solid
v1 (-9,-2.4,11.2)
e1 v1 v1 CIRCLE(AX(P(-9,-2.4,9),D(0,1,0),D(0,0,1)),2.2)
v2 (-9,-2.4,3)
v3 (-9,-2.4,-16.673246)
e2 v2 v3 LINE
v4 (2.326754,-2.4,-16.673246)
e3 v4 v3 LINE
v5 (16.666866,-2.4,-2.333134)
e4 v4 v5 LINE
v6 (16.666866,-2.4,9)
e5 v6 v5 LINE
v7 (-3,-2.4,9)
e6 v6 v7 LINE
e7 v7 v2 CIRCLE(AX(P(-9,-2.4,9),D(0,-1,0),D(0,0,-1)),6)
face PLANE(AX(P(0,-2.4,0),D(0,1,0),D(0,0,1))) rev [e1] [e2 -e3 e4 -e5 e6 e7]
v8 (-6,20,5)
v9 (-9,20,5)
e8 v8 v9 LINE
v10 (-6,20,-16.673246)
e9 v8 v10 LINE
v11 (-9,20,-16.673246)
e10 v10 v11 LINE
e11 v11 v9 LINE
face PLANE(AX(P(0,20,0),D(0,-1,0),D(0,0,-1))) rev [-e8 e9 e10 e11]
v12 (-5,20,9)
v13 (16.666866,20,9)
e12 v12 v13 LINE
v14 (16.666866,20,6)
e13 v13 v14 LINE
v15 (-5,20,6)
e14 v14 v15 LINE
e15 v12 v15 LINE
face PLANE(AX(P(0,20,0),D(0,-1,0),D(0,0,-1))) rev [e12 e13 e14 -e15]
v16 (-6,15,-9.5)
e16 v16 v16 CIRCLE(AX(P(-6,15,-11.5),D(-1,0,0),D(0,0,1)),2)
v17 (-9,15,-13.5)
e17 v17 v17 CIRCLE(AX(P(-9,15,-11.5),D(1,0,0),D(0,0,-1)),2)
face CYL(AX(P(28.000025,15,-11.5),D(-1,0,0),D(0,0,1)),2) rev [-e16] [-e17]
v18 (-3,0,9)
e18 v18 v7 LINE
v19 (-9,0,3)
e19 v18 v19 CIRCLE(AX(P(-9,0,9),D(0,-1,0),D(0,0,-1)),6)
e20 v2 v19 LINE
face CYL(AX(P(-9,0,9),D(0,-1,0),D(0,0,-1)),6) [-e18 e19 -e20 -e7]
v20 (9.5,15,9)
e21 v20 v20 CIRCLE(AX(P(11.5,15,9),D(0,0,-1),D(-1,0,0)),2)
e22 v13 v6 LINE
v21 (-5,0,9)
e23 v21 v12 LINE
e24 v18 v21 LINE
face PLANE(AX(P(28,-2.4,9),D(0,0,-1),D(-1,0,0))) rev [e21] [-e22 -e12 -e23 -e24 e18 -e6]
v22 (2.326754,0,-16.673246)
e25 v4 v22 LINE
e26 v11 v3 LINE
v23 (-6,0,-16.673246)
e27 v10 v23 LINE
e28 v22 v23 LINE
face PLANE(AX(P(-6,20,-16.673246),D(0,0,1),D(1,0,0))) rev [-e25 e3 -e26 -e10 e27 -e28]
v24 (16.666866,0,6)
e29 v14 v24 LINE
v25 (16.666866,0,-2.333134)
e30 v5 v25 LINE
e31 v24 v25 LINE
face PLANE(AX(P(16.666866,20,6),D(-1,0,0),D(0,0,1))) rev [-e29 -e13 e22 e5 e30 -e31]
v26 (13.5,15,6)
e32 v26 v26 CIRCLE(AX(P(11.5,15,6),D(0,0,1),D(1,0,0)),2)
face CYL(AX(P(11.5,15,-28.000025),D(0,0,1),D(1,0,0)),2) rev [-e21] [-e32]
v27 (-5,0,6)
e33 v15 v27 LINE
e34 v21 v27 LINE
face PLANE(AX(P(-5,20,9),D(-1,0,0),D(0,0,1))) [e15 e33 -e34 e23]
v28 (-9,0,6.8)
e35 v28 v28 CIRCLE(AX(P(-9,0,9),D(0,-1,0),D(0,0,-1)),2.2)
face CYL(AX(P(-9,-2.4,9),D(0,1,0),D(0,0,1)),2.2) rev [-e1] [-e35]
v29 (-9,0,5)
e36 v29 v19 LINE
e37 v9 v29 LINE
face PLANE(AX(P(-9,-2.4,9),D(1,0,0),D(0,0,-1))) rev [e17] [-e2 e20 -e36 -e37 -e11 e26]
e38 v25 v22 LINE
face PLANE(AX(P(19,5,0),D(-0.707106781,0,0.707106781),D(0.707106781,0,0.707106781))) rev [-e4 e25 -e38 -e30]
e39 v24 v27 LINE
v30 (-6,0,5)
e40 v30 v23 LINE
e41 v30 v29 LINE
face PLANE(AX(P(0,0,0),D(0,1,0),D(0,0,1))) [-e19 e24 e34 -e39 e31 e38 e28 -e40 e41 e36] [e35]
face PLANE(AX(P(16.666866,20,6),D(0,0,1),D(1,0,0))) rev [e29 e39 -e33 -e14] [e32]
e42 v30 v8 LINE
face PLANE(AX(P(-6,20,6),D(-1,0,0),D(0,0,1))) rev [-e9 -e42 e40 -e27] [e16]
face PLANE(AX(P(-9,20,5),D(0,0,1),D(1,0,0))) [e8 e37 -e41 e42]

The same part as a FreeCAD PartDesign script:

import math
import FreeCAD as App
import Part
import Sketcher
Q = App.Units.Quantity


def edges_at(feature, points):
    """Names of the edges that pass closest to the given points."""
    edges = feature.Shape.Edges
    near = lambda p: min(range(len(edges)), key=lambda i: edges[i].distToShape(Part.Vertex(*p))[0])
    return sorted({f"Edge{near(p) + 1}" for p in points})

doc = App.newDocument("Part")
params = doc.addObject("Spreadsheet::Sheet", "Params")
for row, (alias, value) in enumerate([
    ("sketch1_width", "19 mm"),
    ("pad1_length", "5 mm"),
    ("sketch2_width", "19 mm"),
    ("sketch2_width2", "13 mm"),
    ("pad2_length", "15 mm"),
    ("sketch3_diameter", "4 mm"),
    ("sketch4_diameter", "4 mm"),
    ("fillet_radius", "1 mm"),
    ("sketch5_width", "37 mm"),
    ("pad3_length", "2.4 mm"),
    ("sketch6_width", "3 mm"),
    ("pad4_length", "20 mm"),
    ("sketch7_diameter", "4 mm"),
    ("sketch8_diameter", "4 mm"),
    ("sketch9_radius", "1 mm"),
    ("pocket5_length", "20 mm"),
    ("sketch10_radius", "1 mm"),
    ("sketch11_radius", "1 mm"),
    ("sketch12_diameter", "12 mm"),
    ("pad5_length", "2.4 mm"),
    ("sketch13_diameter", "4.4 mm"),
    ("sketch14_diameter", "8 mm"),
    ("sketch15_radius", "4 mm"),
], start=1):
    params.set(f"A{row}", alias)
    params.set(f"B{row}", "=" + value)
    params.setAlias(f"B{row}", alias)

body = doc.addObject("PartDesign::Body", "Body")

# Sketch on XZ plane
sketch1 = doc.addObject("Sketcher::SketchObject", "Sketch")
body.addObject(sketch1)
sketch1.AttachmentSupport = (doc.XZ_Plane, [""])
sketch1.MapMode = "FlatFace"
sketch1.addGeometry([
    Part.LineSegment(App.Vector(0, -19, 0), App.Vector(0, 0, 0)),
    Part.LineSegment(App.Vector(0, 0, 0), App.Vector(19, 0, 0)),
    Part.LineSegment(App.Vector(19, 0, 0), App.Vector(0, -19, 0)),
], False)
sketch1.addConstraint([
    Sketcher.Constraint("Coincident", 0, 2, 1, 1),
    Sketcher.Constraint("Coincident", 1, 2, 2, 1),
    Sketcher.Constraint("Coincident", 2, 2, 0, 1),
    Sketcher.Constraint("Vertical", 0),
    Sketcher.Constraint("Horizontal", 1),
    Sketcher.Constraint("Coincident", 0, 2, -1, 1),
    Sketcher.Constraint("Equal", 1, 0),
    Sketcher.Constraint("DistanceX", 1, 1, 1, 2, 19.0),
])
sketch1.setExpression("Constraints[7]", "Params.sketch1_width")
pad1 = doc.addObject("PartDesign::Pad", "Pad")
body.addObject(pad1)
pad1.Profile = sketch1
pad1.setExpression("Length", "Params.pad1_length")
pad1.Reversed = True

# Sketch on XZ plane
sketch2 = doc.addObject("Sketcher::SketchObject", "Sketch001")
body.addObject(sketch2)
sketch2.AttachmentSupport = (doc.XZ_Plane, [""])
sketch2.MapMode = "FlatFace"
sketch2.AttachmentOffset = App.Placement(App.Vector(0, 0, -5), App.Rotation())
sketch2.addGeometry([
    Part.LineSegment(App.Vector(0, -19, 0), App.Vector(0, 0, 0)),  # 0
    Part.LineSegment(App.Vector(0, 0, 0), App.Vector(19, 0, 0)),  # 1
    Part.LineSegment(App.Vector(19, 0, 0), App.Vector(16, -3, 0)),  # 2
    Part.LineSegment(App.Vector(16, -3, 0), App.Vector(3, -3, 0)),  # 3
    Part.LineSegment(App.Vector(3, -3, 0), App.Vector(3, -16, 0)),  # 4
    Part.LineSegment(App.Vector(3, -16, 0), App.Vector(0, -19, 0)),  # 5
], False)
sketch2.addConstraint([
    Sketcher.Constraint("Coincident", 0, 2, 1, 1),
    Sketcher.Constraint("Coincident", 1, 2, 2, 1),
    Sketcher.Constraint("Coincident", 2, 2, 3, 1),
    Sketcher.Constraint("Coincident", 3, 2, 4, 1),
    Sketcher.Constraint("Coincident", 4, 2, 5, 1),
    Sketcher.Constraint("Coincident", 5, 2, 0, 1),
    Sketcher.Constraint("Vertical", 0),
    Sketcher.Constraint("Horizontal", 1),
    Sketcher.Constraint("Horizontal", 3),
    Sketcher.Constraint("Vertical", 4),
    Sketcher.Constraint("Coincident", 0, 2, -1, 1),
    Sketcher.Constraint("Parallel", 2, 5),
    Sketcher.Constraint("Equal", 1, 0),
    Sketcher.Constraint("Equal", 3, 4),
    Sketcher.Constraint("Equal", 2, 5),
    Sketcher.Constraint("DistanceX", 1, 1, 1, 2, 19.0),
    Sketcher.Constraint("DistanceX", 3, 2, 3, 1, 13.0),
])
sketch2.setExpression("Constraints[15]", "Params.sketch2_width")
sketch2.setExpression("Constraints[16]", "Params.sketch2_width2")
pad2 = doc.addObject("PartDesign::Pad", "Pad001")
body.addObject(pad2)
pad2.Profile = sketch2
pad2.setExpression("Length", "Params.pad2_length")
pad2.Reversed = True

# Sketch on XY plane
sketch3 = doc.addObject("Sketcher::SketchObject", "Sketch002")
body.addObject(sketch3)
sketch3.AttachmentSupport = (doc.XY_Plane, [""])
sketch3.MapMode = "FlatFace"
sketch3.addGeometry(Part.Circle(App.Vector(11.5, 15, 0), App.Vector(0, 0, 1), 2), False)
sketch3.addConstraint([
    Sketcher.Constraint("Diameter", 0, 4.0),
    Sketcher.Constraint("DistanceY", -1, 1, 0, 3, 15.0),
    Sketcher.Constraint("DistanceX", -1, 1, 0, 3, 11.5),
])
sketch3.setExpression("Constraints[0]", "Params.sketch3_diameter")
pocket1 = doc.addObject("PartDesign::Pocket", "Pocket")
body.addObject(pocket1)
pocket1.Profile = sketch3
pocket1.Type = "ThroughAll"

# Sketch on YZ plane
sketch4 = doc.addObject("Sketcher::SketchObject", "Sketch003")
body.addObject(sketch4)
sketch4.AttachmentSupport = (doc.YZ_Plane, [""])
sketch4.MapMode = "FlatFace"
sketch4.addGeometry(Part.Circle(App.Vector(15, -11.5, 0), App.Vector(0, 0, 1), 2), False)
sketch4.addConstraint([
    Sketcher.Constraint("Diameter", 0, 4.0),
    Sketcher.Constraint("DistanceX", -1, 1, 0, 3, 15.0),
    Sketcher.Constraint("DistanceY", 0, 3, -1, 1, 11.5),
])
sketch4.setExpression("Constraints[0]", "Params.sketch4_diameter")
pocket2 = doc.addObject("PartDesign::Pocket", "Pocket001")
body.addObject(pocket2)
pocket2.Profile = sketch4
pocket2.Type = "ThroughAll"
pocket2.Reversed = True
doc.recompute()

fillet = doc.addObject("PartDesign::Fillet", "Fillet")
body.addObject(fillet)
fillet.Base = (pocket2, edges_at(pocket2, [
    (9.5, 20, -3),
    (3, 20, -9.5),
    (1.5, 20, -17.5),
    (17.5, 20, -1.5),
    (19, 10, 0),
    (0, 10, -19),
]))
fillet.setExpression("Radius", "Params.fillet_radius")

# Sketch on XZ plane
sketch5 = doc.addObject("Sketcher::SketchObject", "Sketch004")
body.addObject(sketch5)
sketch5.AttachmentSupport = (doc.XZ_Plane, [""])
sketch5.MapMode = "FlatFace"
sketch5.addGeometry([
    Part.LineSegment(App.Vector(28, 9, 0), App.Vector(-9, 9, 0)),
    Part.LineSegment(App.Vector(-9, 9, 0), App.Vector(-9, -28, 0)),
    Part.LineSegment(App.Vector(-9, -28, 0), App.Vector(28, 9, 0)),
], False)
sketch5.addConstraint([
    Sketcher.Constraint("Coincident", 0, 2, 1, 1),
    Sketcher.Constraint("Coincident", 1, 2, 2, 1),
    Sketcher.Constraint("Coincident", 2, 2, 0, 1),
    Sketcher.Constraint("Horizontal", 0),
    Sketcher.Constraint("Vertical", 1),
    Sketcher.Constraint("Equal", 0, 1),
    Sketcher.Constraint("DistanceX", 0, 2, 0, 1, 37.0),
    Sketcher.Constraint("DistanceX", 0, 2, -1, 1, 9.0),
    Sketcher.Constraint("DistanceY", -1, 1, 0, 2, 9.0),
])
sketch5.setExpression("Constraints[6]", "Params.sketch5_width")
pad3 = doc.addObject("PartDesign::Pad", "Pad002")
body.addObject(pad3)
pad3.Profile = sketch5
pad3.setExpression("Length", "Params.pad3_length")

# Sketch on XZ plane
sketch6 = doc.addObject("Sketcher::SketchObject", "Sketch005")
body.addObject(sketch6)
sketch6.AttachmentSupport = (doc.XZ_Plane, [""])
sketch6.MapMode = "FlatFace"
sketch6.addGeometry([
    Part.LineSegment(App.Vector(-9, -16.7, 0), App.Vector(-9, 9, 0)),  # 0
    Part.LineSegment(App.Vector(-9, 9, 0), App.Vector(16.7, 9, 0)),  # 1
    Part.LineSegment(App.Vector(16.7, 9, 0), App.Vector(16.7, 6, 0)),  # 2
    Part.LineSegment(App.Vector(16.7, 6, 0), App.Vector(-6, 6, 0)),  # 3
    Part.LineSegment(App.Vector(-6, 6, 0), App.Vector(-6, -16.7, 0)),  # 4
    Part.LineSegment(App.Vector(-6, -16.7, 0), App.Vector(-9, -16.7, 0)),  # 5
], False)
sketch6.addConstraint([
    Sketcher.Constraint("Coincident", 0, 2, 1, 1),
    Sketcher.Constraint("Coincident", 1, 2, 2, 1),
    Sketcher.Constraint("Coincident", 2, 2, 3, 1),
    Sketcher.Constraint("Coincident", 3, 2, 4, 1),
    Sketcher.Constraint("Coincident", 4, 2, 5, 1),
    Sketcher.Constraint("Coincident", 5, 2, 0, 1),
    Sketcher.Constraint("Vertical", 0),
    Sketcher.Constraint("Horizontal", 1),
    Sketcher.Constraint("Vertical", 2),
    Sketcher.Constraint("Horizontal", 3),
    Sketcher.Constraint("Vertical", 4),
    Sketcher.Constraint("Horizontal", 5),
    Sketcher.Constraint("Equal", 5, 2),
    Sketcher.Constraint("DistanceX", 5, 2, 5, 1, 3.0),
    Sketcher.Constraint("DistanceX", 0, 2, -1, 1, 9.0),
    Sketcher.Constraint("DistanceY", -1, 1, 0, 2, 9.0),
    Sketcher.Constraint("DistanceX", 1, 1, 1, 2, 25.666866),
    Sketcher.Constraint("DistanceY", 0, 1, 0, 2, 25.673246),
])
sketch6.setExpression("Constraints[13]", "Params.sketch6_width")
pad4 = doc.addObject("PartDesign::Pad", "Pad003")
body.addObject(pad4)
pad4.Profile = sketch6
pad4.setExpression("Length", "Params.pad4_length")
pad4.Reversed = True

# Sketch on XY plane
sketch7 = doc.addObject("Sketcher::SketchObject", "Sketch006")
body.addObject(sketch7)
sketch7.AttachmentSupport = (doc.XY_Plane, [""])
sketch7.MapMode = "FlatFace"
sketch7.AttachmentOffset = App.Placement(App.Vector(0, 0, 9), App.Rotation())
sketch7.addGeometry(Part.Circle(App.Vector(11.5, 15, 0), App.Vector(0, 0, 1), 2), False)
sketch7.addConstraint([
    Sketcher.Constraint("Diameter", 0, 4.0),
    Sketcher.Constraint("DistanceY", -1, 1, 0, 3, 15.0),
    Sketcher.Constraint("DistanceX", -1, 1, 0, 3, 11.5),
])
sketch7.setExpression("Constraints[0]", "Params.sketch7_diameter")
pocket3 = doc.addObject("PartDesign::Pocket", "Pocket002")
body.addObject(pocket3)
pocket3.Profile = sketch7
pocket3.Type = "ThroughAll"
pocket3.Midplane = True

# Sketch on YZ plane
sketch8 = doc.addObject("Sketcher::SketchObject", "Sketch007")
body.addObject(sketch8)
sketch8.AttachmentSupport = (doc.YZ_Plane, [""])
sketch8.MapMode = "FlatFace"
sketch8.AttachmentOffset = App.Placement(App.Vector(0, 0, -9), App.Rotation())
sketch8.addGeometry(Part.Circle(App.Vector(15, -11.5, 0), App.Vector(0, 0, 1), 2), False)
sketch8.addConstraint([
    Sketcher.Constraint("Diameter", 0, 4.0),
    Sketcher.Constraint("DistanceX", -1, 1, 0, 3, 15.0),
    Sketcher.Constraint("DistanceY", 0, 3, -1, 1, 11.5),
])
sketch8.setExpression("Constraints[0]", "Params.sketch8_diameter")
pocket4 = doc.addObject("PartDesign::Pocket", "Pocket003")
body.addObject(pocket4)
pocket4.Profile = sketch8
pocket4.Type = "ThroughAll"
pocket4.Midplane = True

# Sketch on XZ plane
sketch9 = doc.addObject("Sketcher::SketchObject", "Sketch008")
body.addObject(sketch9)
sketch9.AttachmentSupport = (doc.XZ_Plane, [""])
sketch9.MapMode = "FlatFace"
sketch9.addGeometry([
    Part.LineSegment(App.Vector(16.7, 9, 0), App.Vector(28, 9, 0)),  # 0
    Part.LineSegment(App.Vector(28, 9, 0), App.Vector(17.3, -1.7, 0)),  # 1
    Part.ArcOfCircle(Part.Circle(App.Vector(16.6, -1, 0), App.Vector(0, 0, 1), 1), math.radians(-45), math.radians(85)),  # 2
    Part.LineSegment(App.Vector(16.7, 0, 0), App.Vector(16.7, 9, 0)),  # 3
    Part.ArcOfCircle(Part.Circle(App.Vector(1, -16.6, 0), App.Vector(0, 0, 1), 1), math.radians(-175), math.radians(-45)),  # 4
    Part.LineSegment(App.Vector(1.7, -17.3, 0), App.Vector(-9, -28, 0)),  # 5
    Part.LineSegment(App.Vector(-9, -28, 0), App.Vector(-9, -16.7, 0)),  # 6
    Part.LineSegment(App.Vector(-9, -16.7, 0), App.Vector(0, -16.7, 0)),  # 7
], False)
sketch9.addConstraint([
    Sketcher.Constraint("Coincident", 0, 2, 1, 1),
    Sketcher.Constraint("Tangent", 1, 2, 2, 1),
    Sketcher.Constraint("Coincident", 2, 2, 3, 1),
    Sketcher.Constraint("Coincident", 3, 2, 0, 1),
    Sketcher.Constraint("Tangent", 4, 2, 5, 1),
    Sketcher.Constraint("Coincident", 5, 2, 6, 1),
    Sketcher.Constraint("Coincident", 6, 2, 7, 1),
    Sketcher.Constraint("Coincident", 7, 2, 4, 1),
    Sketcher.Constraint("Horizontal", 0),
    Sketcher.Constraint("Vertical", 3),
    Sketcher.Constraint("Vertical", 6),
    Sketcher.Constraint("Horizontal", 7),
    Sketcher.Constraint("Equal", 2, 4),
    Sketcher.Constraint("Parallel", 1, 5),
    Sketcher.Constraint("Equal", 1, 5),
    Sketcher.Constraint("Radius", 2, 1.0),
    Sketcher.Constraint("Angle", 1, Q("-135 deg")),
    Sketcher.Constraint("DistanceY", 2, 3, -1, 1, 1.0),
    Sketcher.Constraint("DistanceX", -1, 1, 4, 3, 1.0),
    Sketcher.Constraint("DistanceX", -1, 1, 0, 2, 28.0),
    Sketcher.Constraint("DistanceY", -1, 1, 0, 2, 9.0),
    Sketcher.Constraint("DistanceY", 5, 2, -1, 1, 28.0),
    Sketcher.Constraint("DistanceX", 7, 1, 7, 2, 9.003832),
    Sketcher.Constraint("DistanceY", 4, 2, 2, 2, 17.289601),
])
sketch9.setExpression("Constraints[15]", "Params.sketch9_radius")
pocket5 = doc.addObject("PartDesign::Pocket", "Pocket004")
body.addObject(pocket5)
pocket5.Profile = sketch9
pocket5.setExpression("Length", "Params.pocket5_length")
pocket5.Reversed = True

# Sketch on XZ plane
sketch10 = doc.addObject("Sketcher::SketchObject", "Sketch009")
body.addObject(sketch10)
sketch10.AttachmentSupport = (doc.XZ_Plane, [""])
sketch10.MapMode = "FlatFace"
sketch10.addGeometry([
    Part.LineSegment(App.Vector(17.3, -1.7, 0), App.Vector(1.7, -17.3, 0)),  # 0
    Part.ArcOfCircle(Part.Circle(App.Vector(1, -16.6, 0), App.Vector(0, 0, 1), 1), math.radians(-180), math.radians(-45)),  # 1
    Part.LineSegment(App.Vector(0, -16.6, 0), App.Vector(0, 0, 0)),  # 2
    Part.LineSegment(App.Vector(0, 0, 0), App.Vector(16.6, 0, 0)),  # 3
    Part.ArcOfCircle(Part.Circle(App.Vector(16.6, -1, 0), App.Vector(0, 0, 1), 1), math.radians(-45), math.radians(90)),  # 4
], False)
sketch10.addConstraint([
    Sketcher.Constraint("Tangent", 0, 2, 1, 2),
    Sketcher.Constraint("Tangent", 1, 1, 2, 1),
    Sketcher.Constraint("Coincident", 2, 2, 3, 1),
    Sketcher.Constraint("Tangent", 3, 2, 4, 2),
    Sketcher.Constraint("Tangent", 4, 1, 0, 1),
    Sketcher.Constraint("Vertical", 2),
    Sketcher.Constraint("Horizontal", 3),
    Sketcher.Constraint("Coincident", 2, 2, -1, 1),
    Sketcher.Constraint("Equal", 1, 4),
    Sketcher.Constraint("Equal", 3, 2),
    Sketcher.Constraint("Radius", 1, 1.0),
    Sketcher.Constraint("Distance", 0, 22.041631),
])
sketch10.setExpression("Constraints[10]", "Params.sketch10_radius")
pocket6 = doc.addObject("PartDesign::Pocket", "Pocket005")
body.addObject(pocket6)
pocket6.Profile = sketch10
pocket6.Type = "ThroughAll"

# Sketch on XZ plane
sketch11 = doc.addObject("Sketcher::SketchObject", "Sketch010")
body.addObject(sketch11)
sketch11.AttachmentSupport = (doc.XZ_Plane, [""])
sketch11.MapMode = "FlatFace"
sketch11.addGeometry([
    Part.LineSegment(App.Vector(0, -16.7, 0), App.Vector(2.3, -16.7, 0)),  # 0
    Part.LineSegment(App.Vector(2.3, -16.7, 0), App.Vector(1.7, -17.3, 0)),  # 1
    Part.ArcOfCircle(Part.Circle(App.Vector(1, -16.6, 0), App.Vector(0, 0, 1), 1), math.radians(-175), math.radians(-45)),  # 2
    Part.LineSegment(App.Vector(17.3, -1.7, 0), App.Vector(16.7, -2.3, 0)),  # 3
    Part.LineSegment(App.Vector(16.7, -2.3, 0), App.Vector(16.7, 0, 0)),  # 4
    Part.ArcOfCircle(Part.Circle(App.Vector(16.6, -1, 0), App.Vector(0, 0, 1), 1), math.radians(-45), math.radians(85)),  # 5
], False)
sketch11.addConstraint([
    Sketcher.Constraint("Coincident", 0, 2, 1, 1),
    Sketcher.Constraint("Tangent", 1, 2, 2, 2),
    Sketcher.Constraint("Coincident", 2, 1, 0, 1),
    Sketcher.Constraint("Coincident", 3, 2, 4, 1),
    Sketcher.Constraint("Coincident", 4, 2, 5, 2),
    Sketcher.Constraint("Tangent", 5, 1, 3, 1),
    Sketcher.Constraint("Horizontal", 0),
    Sketcher.Constraint("Vertical", 4),
    Sketcher.Constraint("Equal", 2, 5),
    Sketcher.Constraint("Parallel", 1, 3),
    Sketcher.Constraint("Radius", 2, 1.0),
    Sketcher.Constraint("Angle", 1, Q("-135 deg")),
    Sketcher.Constraint("DistanceX", -1, 1, 2, 3, 1.0),
    Sketcher.Constraint("DistanceY", 5, 3, -1, 1, 1.0),
    Sketcher.Constraint("DistanceX", 0, 1, 0, 2, 2.322922),
    Sketcher.Constraint("DistanceY", 4, 1, 4, 2, 2.329841),
    Sketcher.Constraint("DistanceY", 1, 2, 4, 2, 17.289601),
    Sketcher.Constraint("DistanceX", 1, 2, 5, 3, 14.87868),
])
sketch11.setExpression("Constraints[10]", "Params.sketch11_radius")
pocket7 = doc.addObject("PartDesign::Pocket", "Pocket006")
body.addObject(pocket7)
pocket7.Profile = sketch11
pocket7.Type = "ThroughAll"
pocket7.Reversed = True

# Sketch on XZ plane
sketch12 = doc.addObject("Sketcher::SketchObject", "Sketch011")
body.addObject(sketch12)
sketch12.AttachmentSupport = (doc.XZ_Plane, [""])
sketch12.MapMode = "FlatFace"
sketch12.AttachmentOffset = App.Placement(App.Vector(0, 0, 2.4), App.Rotation())
sketch12.addGeometry(Part.Circle(App.Vector(-9, 9, 0), App.Vector(0, 0, 1), 6), False)
sketch12.addConstraint([
    Sketcher.Constraint("Diameter", 0, 12.0),
    Sketcher.Constraint("DistanceX", 0, 3, -1, 1, 9.0),
    Sketcher.Constraint("DistanceY", -1, 1, 0, 3, 9.0),
])
sketch12.setExpression("Constraints[0]", "Params.sketch12_diameter")
pad5 = doc.addObject("PartDesign::Pad", "Pad004")
body.addObject(pad5)
pad5.Profile = sketch12
pad5.setExpression("Length", "Params.pad5_length")
pad5.Reversed = True

# Sketch on XZ plane
sketch13 = doc.addObject("Sketcher::SketchObject", "Sketch012")
body.addObject(sketch13)
sketch13.AttachmentSupport = (doc.XZ_Plane, [""])
sketch13.MapMode = "FlatFace"
sketch13.addGeometry(Part.Circle(App.Vector(-9, 9, 0), App.Vector(0, 0, 1), 2.2), False)
sketch13.addConstraint([
    Sketcher.Constraint("Diameter", 0, 4.4),
    Sketcher.Constraint("DistanceX", 0, 3, -1, 1, 9.0),
    Sketcher.Constraint("DistanceY", -1, 1, 0, 3, 9.0),
])
sketch13.setExpression("Constraints[0]", "Params.sketch13_diameter")
pocket8 = doc.addObject("PartDesign::Pocket", "Pocket007")
body.addObject(pocket8)
pocket8.Profile = sketch13
pocket8.Type = "ThroughAll"
pocket8.Midplane = True

# Sketch on XZ plane
sketch14 = doc.addObject("Sketcher::SketchObject", "Sketch013")
body.addObject(sketch14)
sketch14.AttachmentSupport = (doc.XZ_Plane, [""])
sketch14.MapMode = "FlatFace"
sketch14.addGeometry(Part.Circle(App.Vector(-9, 9, 0), App.Vector(0, 0, 1), 4), False)
sketch14.addConstraint([
    Sketcher.Constraint("Diameter", 0, 8.0),
    Sketcher.Constraint("DistanceX", 0, 3, -1, 1, 9.0),
    Sketcher.Constraint("DistanceY", -1, 1, 0, 3, 9.0),
])
sketch14.setExpression("Constraints[0]", "Params.sketch14_diameter")
pocket9 = doc.addObject("PartDesign::Pocket", "Pocket008")
body.addObject(pocket9)
pocket9.Profile = sketch14
pocket9.Type = "ThroughAll"

# Sketch on XZ plane
sketch15 = doc.addObject("Sketcher::SketchObject", "Sketch014")
body.addObject(sketch15)
sketch15.AttachmentSupport = (doc.XZ_Plane, [""])
sketch15.MapMode = "FlatFace"
sketch15.addGeometry([
    Part.LineSegment(App.Vector(-5, 5, 0), App.Vector(-9, 5, 0)),
    Part.ArcOfCircle(Part.Circle(App.Vector(-9, 9, 0), App.Vector(0, 0, 1), 4), math.radians(-90), math.radians(0)),
    Part.LineSegment(App.Vector(-5, 9, 0), App.Vector(-5, 5, 0)),
], False)
sketch15.addConstraint([
    Sketcher.Constraint("Tangent", 0, 2, 1, 1),
    Sketcher.Constraint("Tangent", 1, 2, 2, 1),
    Sketcher.Constraint("Coincident", 2, 2, 0, 1),
    Sketcher.Constraint("Horizontal", 0),
    Sketcher.Constraint("Vertical", 2),
    Sketcher.Constraint("Radius", 1, 4.0),
    Sketcher.Constraint("DistanceX", 1, 3, -1, 1, 9.0),
    Sketcher.Constraint("DistanceY", -1, 1, 1, 3, 9.0),
])
sketch15.setExpression("Constraints[5]", "Params.sketch15_radius")
pocket10 = doc.addObject("PartDesign::Pocket", "Pocket009")
body.addObject(pocket10)
pocket10.Profile = sketch15
pocket10.Type = "ThroughAll"

doc.recompute()
